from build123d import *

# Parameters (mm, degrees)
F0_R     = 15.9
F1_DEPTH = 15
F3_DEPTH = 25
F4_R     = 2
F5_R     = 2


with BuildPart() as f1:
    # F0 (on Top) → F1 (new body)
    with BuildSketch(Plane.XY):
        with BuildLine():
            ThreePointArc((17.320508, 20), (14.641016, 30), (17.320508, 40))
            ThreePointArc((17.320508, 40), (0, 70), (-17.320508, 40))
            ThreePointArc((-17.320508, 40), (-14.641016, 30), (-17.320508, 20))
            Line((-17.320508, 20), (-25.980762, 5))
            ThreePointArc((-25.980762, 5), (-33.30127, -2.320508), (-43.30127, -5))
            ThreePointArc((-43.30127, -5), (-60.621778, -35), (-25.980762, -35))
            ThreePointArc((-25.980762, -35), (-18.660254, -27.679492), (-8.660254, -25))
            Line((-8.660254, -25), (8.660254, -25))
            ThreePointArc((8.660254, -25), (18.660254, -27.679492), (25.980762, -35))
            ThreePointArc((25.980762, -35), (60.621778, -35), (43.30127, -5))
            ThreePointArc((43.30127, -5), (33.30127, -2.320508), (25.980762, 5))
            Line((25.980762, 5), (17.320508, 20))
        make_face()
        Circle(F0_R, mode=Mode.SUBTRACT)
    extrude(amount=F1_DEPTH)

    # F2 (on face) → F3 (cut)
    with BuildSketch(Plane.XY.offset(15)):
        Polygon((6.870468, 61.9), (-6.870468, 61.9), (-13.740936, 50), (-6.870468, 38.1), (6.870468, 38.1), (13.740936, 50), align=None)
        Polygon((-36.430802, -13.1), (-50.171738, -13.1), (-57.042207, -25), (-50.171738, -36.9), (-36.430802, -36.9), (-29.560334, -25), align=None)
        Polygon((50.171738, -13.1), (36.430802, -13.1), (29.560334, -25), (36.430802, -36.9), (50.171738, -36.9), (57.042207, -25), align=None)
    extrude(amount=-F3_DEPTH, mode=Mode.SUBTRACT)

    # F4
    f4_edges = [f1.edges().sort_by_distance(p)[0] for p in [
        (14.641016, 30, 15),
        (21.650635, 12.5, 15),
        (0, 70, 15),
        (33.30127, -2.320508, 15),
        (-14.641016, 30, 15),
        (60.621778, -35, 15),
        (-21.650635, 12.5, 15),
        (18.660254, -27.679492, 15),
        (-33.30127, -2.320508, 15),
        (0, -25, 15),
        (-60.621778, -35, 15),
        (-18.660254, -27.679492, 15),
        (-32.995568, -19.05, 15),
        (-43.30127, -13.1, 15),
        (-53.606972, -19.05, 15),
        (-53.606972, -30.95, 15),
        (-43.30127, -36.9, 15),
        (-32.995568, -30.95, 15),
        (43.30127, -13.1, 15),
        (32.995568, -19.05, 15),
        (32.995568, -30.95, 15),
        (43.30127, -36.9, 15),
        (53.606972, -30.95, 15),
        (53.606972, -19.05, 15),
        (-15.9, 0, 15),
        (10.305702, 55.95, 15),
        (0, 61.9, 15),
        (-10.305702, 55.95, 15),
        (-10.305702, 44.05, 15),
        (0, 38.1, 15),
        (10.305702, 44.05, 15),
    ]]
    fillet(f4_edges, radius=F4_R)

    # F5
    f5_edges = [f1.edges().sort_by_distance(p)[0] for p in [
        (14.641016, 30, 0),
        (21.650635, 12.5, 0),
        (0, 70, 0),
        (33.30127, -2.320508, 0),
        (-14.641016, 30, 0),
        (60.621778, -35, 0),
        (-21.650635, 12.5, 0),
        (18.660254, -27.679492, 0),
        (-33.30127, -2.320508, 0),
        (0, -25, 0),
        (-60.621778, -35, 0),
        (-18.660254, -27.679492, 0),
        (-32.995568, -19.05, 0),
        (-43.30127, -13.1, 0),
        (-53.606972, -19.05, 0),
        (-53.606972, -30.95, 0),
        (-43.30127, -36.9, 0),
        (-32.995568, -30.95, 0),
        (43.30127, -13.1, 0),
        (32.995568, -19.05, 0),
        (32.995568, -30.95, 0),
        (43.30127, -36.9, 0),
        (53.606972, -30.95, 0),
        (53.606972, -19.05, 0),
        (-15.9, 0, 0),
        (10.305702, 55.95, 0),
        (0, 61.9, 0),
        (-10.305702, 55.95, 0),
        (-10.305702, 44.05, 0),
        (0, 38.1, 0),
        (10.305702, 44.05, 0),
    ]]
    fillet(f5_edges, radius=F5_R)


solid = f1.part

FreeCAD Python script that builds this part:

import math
import FreeCAD as App
import Part
import Sketcher
from FreeCAD import Vector
Q = App.Units.Quantity


def edges_at(feature, points):
    """Names of the edges that pass closest to the given points."""
    edges = feature.Shape.Edges
    near = lambda p: min(range(len(edges)), key=lambda i: edges[i].distToShape(Part.Vertex(*p))[0])
    return sorted({f"Edge{near(p) + 1}" for p in points})


def add_polygon(sketch, points):
    """Adds a closed chain of lines whose ends are joined by coincident constraints."""
    first, n = sketch.GeometryCount, len(points)
    for a, b in zip(points, points[1:] + points[:1]):
        sketch.addGeometry(Part.LineSegment(App.Vector(*a, 0), App.Vector(*b, 0)), False)
    for i in range(n):
        sketch.addConstraint(Sketcher.Constraint("Coincident", first + i, 2, first + (i + 1) % n, 1))

doc = App.newDocument("Part")
body = doc.addObject("PartDesign::Body", "Body")

sketch1 = doc.addObject("Sketcher::SketchObject", "Sketch")
body.addObject(sketch1)
sketch1.AttachmentSupport = (doc.XY_Plane, [""])
sketch1.MapMode = "FlatFace"
sketch1.addGeometry([
    Part.ArcOfCircle(Part.Circle(Vector(35, 30, 0), Vector(0, 0, 1), 20), math.radians(150), math.radians(210)),
    Part.ArcOfCircle(Part.Circle(Vector(0, 50, 0), Vector(0, 0, 1), 20), math.radians(-30), math.radians(210)),
    Part.ArcOfCircle(Part.Circle(Vector(-35, 30, 0), Vector(0, 0, 1), 20), math.radians(-30), math.radians(30)),
    Part.LineSegment(Vector(-17, 20, 0), Vector(-26, 5, 0)),
    Part.ArcOfCircle(Part.Circle(Vector(-43, 15, 0), Vector(0, 0, 1), 20), math.radians(-90), math.radians(-30)),
    Part.ArcOfCircle(Part.Circle(Vector(-43, -25, 0), Vector(0, 0, 1), 20), math.radians(90), math.radians(330)),
    Part.ArcOfCircle(Part.Circle(Vector(-9, -45, 0), Vector(0, 0, 1), 20), math.radians(90), math.radians(150)),
    Part.LineSegment(Vector(-9, -25, 0), Vector(9, -25, 0)),
    Part.ArcOfCircle(Part.Circle(Vector(9, -45, 0), Vector(0, 0, 1), 20), math.radians(30), math.radians(90)),
    Part.ArcOfCircle(Part.Circle(Vector(43, -25, 0), Vector(0, 0, 1), 20), math.radians(-150), math.radians(90)),
    Part.ArcOfCircle(Part.Circle(Vector(43, 15, 0), Vector(0, 0, 1), 20), math.radians(-150), math.radians(-90)),
    Part.LineSegment(Vector(26, 5, 0), Vector(17, 20, 0)),
    Part.Circle(Vector(0, 0, 0), Vector(0, 0, 1), 16),
], False)
sketch1.addConstraint([
    Sketcher.Constraint("Tangent", 0, 1, 1, 1),
    Sketcher.Constraint("Tangent", 1, 2, 2, 2),
    Sketcher.Constraint("Tangent", 2, 1, 3, 1),
    Sketcher.Constraint("Tangent", 3, 2, 4, 2),
    Sketcher.Constraint("Tangent", 4, 1, 5, 1),
    Sketcher.Constraint("Tangent", 5, 2, 6, 2),
    Sketcher.Constraint("Tangent", 6, 1, 7, 1),
    Sketcher.Constraint("Tangent", 7, 2, 8, 2),
    Sketcher.Constraint("Tangent", 8, 1, 9, 1),
    Sketcher.Constraint("Tangent", 9, 2, 10, 2),
    Sketcher.Constraint("Tangent", 10, 1, 11, 1),
    Sketcher.Constraint("Tangent", 11, 2, 0, 2),
    Sketcher.Constraint("Horizontal", 7),
    Sketcher.Constraint("Coincident", 12, 3, -1, 1),
    Sketcher.Constraint("Equal", 0, 1),
    Sketcher.Constraint("Equal", 1, 2),
    Sketcher.Constraint("Equal", 2, 4),
    Sketcher.Constraint("Equal", 4, 5),
    Sketcher.Constraint("Equal", 5, 6),
    Sketcher.Constraint("Equal", 6, 8),
    Sketcher.Constraint("Equal", 8, 9),
    Sketcher.Constraint("Equal", 9, 10),
    Sketcher.Constraint("Symmetric", 0, 3, 2, 3, -2),
    Sketcher.Constraint("Symmetric", 5, 3, 9, 3, -2),
    Sketcher.Constraint("Horizontal", 9, 3, 6, 1),
    Sketcher.Constraint("Horizontal", 3, 2, 10, 1),
    Sketcher.Constraint("Vertical", 4, 3, 5, 3),
    Sketcher.Constraint("Vertical", 1, 2, 2, 1),
    Sketcher.Constraint("Vertical", 3, 2, 5, 2),
    Sketcher.Constraint("Radius", 0, Q("20 mm")),
    Sketcher.Constraint("Diameter", 12, Q("31.8 mm")),
    Sketcher.Constraint("DistanceY", -1, 1, 0, 3, Q("30 mm")),
    Sketcher.Constraint("DistanceY", -1, 1, 4, 3, Q("15 mm")),
])
pad1 = doc.addObject("PartDesign::Pad", "Pad")
body.addObject(pad1)
pad1.Profile = sketch1
pad1.Length = 15

sketch2 = doc.addObject("Sketcher::SketchObject", "Sketch001")
body.addObject(sketch2)
sketch2.AttachmentSupport = (doc.XY_Plane, [""])
sketch2.MapMode = "FlatFace"
sketch2.AttachmentOffset = App.Placement(Vector(0, 0, 15), App.Rotation())
add_polygon(sketch2, [(7, 62), (-7, 62), (-14, 50), (-7, 38), (7, 38), (14, 50)])
add_polygon(sketch2, [(-36, -13), (-50, -13), (-57, -25), (-50, -37), (-36, -37), (-30, -25)])
add_polygon(sketch2, [(50, -13), (36, -13), (30, -25), (36, -37), (50, -37), (57, -25)])
sketch2.addConstraint([
    Sketcher.Constraint("Horizontal", 0),
    Sketcher.Constraint("Horizontal", 3),
    Sketcher.Constraint("Horizontal", 6),
    Sketcher.Constraint("Horizontal", 9),
    Sketcher.Constraint("Horizontal", 12),
    Sketcher.Constraint("Horizontal", 15),
    Sketcher.Constraint("Symmetric", 1, 2, 4, 2, -2),
    Sketcher.Constraint("Symmetric", 11, 2, 12, 2, -2),
    Sketcher.Constraint("Symmetric", 10, 2, 13, 2, -2),
    Sketcher.Constraint("Symmetric", 9, 2, 14, 2, -2),
    Sketcher.Constraint("Symmetric", 7, 2, 16, 2, -2),
    Sketcher.Constraint("Parallel", 1, 4),
    Sketcher.Constraint("Parallel", 2, 5),
    Sketcher.Constraint("Parallel", 4, 7),
    Sketcher.Constraint("Parallel", 5, 8),
    Sketcher.Constraint("Parallel", 7, 10),
    Sketcher.Constraint("Parallel", 8, 11),
    Sketcher.Constraint("Parallel", 10, 13),
    Sketcher.Constraint("Parallel", 13, 16),
    Sketcher.Constraint("Parallel", 14, 17),
    Sketcher.Constraint("Horizontal", 7, 2, 10, 2),
    Sketcher.Constraint("Vertical", 0, 2, 2, 2),
    Sketcher.Constraint("Vertical", 6, 2, 8, 2),
    Sketcher.Constraint("Equal", 3, 6),
    Sketcher.Constraint("Equal", 5, 7),
    Sketcher.Constraint("Angle", 1, Q("-119.999999 deg")),
    Sketcher.Constraint("DistanceY", -1, 1, 1, 2, Q("50 mm")),
    Sketcher.Constraint("DistanceY", 7, 2, -1, 1, Q("25 mm")),
    Sketcher.Constraint("DistanceY", -1, 1, 0, 2, Q("61.9 mm")),
    Sketcher.Constraint("DistanceX", 0, 2, 0, 1, Q("13.740936 mm")),
    Sketcher.Constraint("DistanceX", 6, 2, 2, 2, Q("43.30127 mm")),
])
pocket1 = doc.addObject("PartDesign::Pocket", "Pocket")
body.addObject(pocket1)
pocket1.Profile = sketch2
pocket1.Length = 25
doc.recompute()

fillet = doc.addObject("PartDesign::Fillet", "Fillet")
body.addObject(fillet)
fillet.Base = (pocket1, edges_at(pocket1, [
    (14.641, 30, 15),
    (21.651, 12.5, 15),
    (0, 70, 15),
    (33.301, -2.321, 15),
    (-14.641, 30, 15),
    (60.622, -35, 15),
    (-21.651, 12.5, 15),
    (18.66, -27.679, 15),
    (-33.301, -2.321, 15),
    (0, -25, 15),
    (-60.622, -35, 15),
    (-18.66, -27.679, 15),
    (-32.996, -19.05, 15),
    (-43.301, -13.1, 15),
    (-53.607, -19.05, 15),
    (-53.607, -30.95, 15),
    (-43.301, -36.9, 15),
    (-32.996, -30.95, 15),
    (43.301, -13.1, 15),
    (32.996, -19.05, 15),
    (32.996, -30.95, 15),
    (43.301, -36.9, 15),
    (53.607, -30.95, 15),
    (53.607, -19.05, 15),
    (-15.9, 0, 15),
    (10.306, 55.95, 15),
    (0, 61.9, 15),
    (-10.306, 55.95, 15),
    (-10.306, 44.05, 15),
    (0, 38.1, 15),
    (10.306, 44.05, 15),
]))
fillet.Radius = 2
doc.recompute()

fillet2 = doc.addObject("PartDesign::Fillet", "Fillet001")
body.addObject(fillet2)
fillet2.Base = (fillet, edges_at(fillet, [
    (14.641, 30, 0),
    (21.651, 12.5, 0),
    (0, 70, 0),
    (33.301, -2.321, 0),
    (-14.641, 30, 0),
    (60.622, -35, 0),
    (-21.651, 12.5, 0),
    (18.66, -27.679, 0),
    (-33.301, -2.321, 0),
    (0, -25, 0),
    (-60.622, -35, 0),
    (-18.66, -27.679, 0),
    (-32.996, -19.05, 0),
    (-43.301, -13.1, 0),
    (-53.607, -19.05, 0),
    (-53.607, -30.95, 0),
    (-43.301, -36.9, 0),
    (-32.996, -30.95, 0),
    (43.301, -13.1, 0),
    (32.996, -19.05, 0),
    (32.996, -30.95, 0),
    (43.301, -36.9, 0),
    (53.607, -30.95, 0),
    (53.607, -19.05, 0),
    (-15.9, 0, 0),
    (10.306, 55.95, 0),
    (0, 61.9, 0),
    (-10.306, 55.95, 0),
    (-10.306, 44.05, 0),
    (0, 38.1, 0),
    (10.306, 44.05, 0),
]))
fillet2.Radius = 2

doc.recompute()
